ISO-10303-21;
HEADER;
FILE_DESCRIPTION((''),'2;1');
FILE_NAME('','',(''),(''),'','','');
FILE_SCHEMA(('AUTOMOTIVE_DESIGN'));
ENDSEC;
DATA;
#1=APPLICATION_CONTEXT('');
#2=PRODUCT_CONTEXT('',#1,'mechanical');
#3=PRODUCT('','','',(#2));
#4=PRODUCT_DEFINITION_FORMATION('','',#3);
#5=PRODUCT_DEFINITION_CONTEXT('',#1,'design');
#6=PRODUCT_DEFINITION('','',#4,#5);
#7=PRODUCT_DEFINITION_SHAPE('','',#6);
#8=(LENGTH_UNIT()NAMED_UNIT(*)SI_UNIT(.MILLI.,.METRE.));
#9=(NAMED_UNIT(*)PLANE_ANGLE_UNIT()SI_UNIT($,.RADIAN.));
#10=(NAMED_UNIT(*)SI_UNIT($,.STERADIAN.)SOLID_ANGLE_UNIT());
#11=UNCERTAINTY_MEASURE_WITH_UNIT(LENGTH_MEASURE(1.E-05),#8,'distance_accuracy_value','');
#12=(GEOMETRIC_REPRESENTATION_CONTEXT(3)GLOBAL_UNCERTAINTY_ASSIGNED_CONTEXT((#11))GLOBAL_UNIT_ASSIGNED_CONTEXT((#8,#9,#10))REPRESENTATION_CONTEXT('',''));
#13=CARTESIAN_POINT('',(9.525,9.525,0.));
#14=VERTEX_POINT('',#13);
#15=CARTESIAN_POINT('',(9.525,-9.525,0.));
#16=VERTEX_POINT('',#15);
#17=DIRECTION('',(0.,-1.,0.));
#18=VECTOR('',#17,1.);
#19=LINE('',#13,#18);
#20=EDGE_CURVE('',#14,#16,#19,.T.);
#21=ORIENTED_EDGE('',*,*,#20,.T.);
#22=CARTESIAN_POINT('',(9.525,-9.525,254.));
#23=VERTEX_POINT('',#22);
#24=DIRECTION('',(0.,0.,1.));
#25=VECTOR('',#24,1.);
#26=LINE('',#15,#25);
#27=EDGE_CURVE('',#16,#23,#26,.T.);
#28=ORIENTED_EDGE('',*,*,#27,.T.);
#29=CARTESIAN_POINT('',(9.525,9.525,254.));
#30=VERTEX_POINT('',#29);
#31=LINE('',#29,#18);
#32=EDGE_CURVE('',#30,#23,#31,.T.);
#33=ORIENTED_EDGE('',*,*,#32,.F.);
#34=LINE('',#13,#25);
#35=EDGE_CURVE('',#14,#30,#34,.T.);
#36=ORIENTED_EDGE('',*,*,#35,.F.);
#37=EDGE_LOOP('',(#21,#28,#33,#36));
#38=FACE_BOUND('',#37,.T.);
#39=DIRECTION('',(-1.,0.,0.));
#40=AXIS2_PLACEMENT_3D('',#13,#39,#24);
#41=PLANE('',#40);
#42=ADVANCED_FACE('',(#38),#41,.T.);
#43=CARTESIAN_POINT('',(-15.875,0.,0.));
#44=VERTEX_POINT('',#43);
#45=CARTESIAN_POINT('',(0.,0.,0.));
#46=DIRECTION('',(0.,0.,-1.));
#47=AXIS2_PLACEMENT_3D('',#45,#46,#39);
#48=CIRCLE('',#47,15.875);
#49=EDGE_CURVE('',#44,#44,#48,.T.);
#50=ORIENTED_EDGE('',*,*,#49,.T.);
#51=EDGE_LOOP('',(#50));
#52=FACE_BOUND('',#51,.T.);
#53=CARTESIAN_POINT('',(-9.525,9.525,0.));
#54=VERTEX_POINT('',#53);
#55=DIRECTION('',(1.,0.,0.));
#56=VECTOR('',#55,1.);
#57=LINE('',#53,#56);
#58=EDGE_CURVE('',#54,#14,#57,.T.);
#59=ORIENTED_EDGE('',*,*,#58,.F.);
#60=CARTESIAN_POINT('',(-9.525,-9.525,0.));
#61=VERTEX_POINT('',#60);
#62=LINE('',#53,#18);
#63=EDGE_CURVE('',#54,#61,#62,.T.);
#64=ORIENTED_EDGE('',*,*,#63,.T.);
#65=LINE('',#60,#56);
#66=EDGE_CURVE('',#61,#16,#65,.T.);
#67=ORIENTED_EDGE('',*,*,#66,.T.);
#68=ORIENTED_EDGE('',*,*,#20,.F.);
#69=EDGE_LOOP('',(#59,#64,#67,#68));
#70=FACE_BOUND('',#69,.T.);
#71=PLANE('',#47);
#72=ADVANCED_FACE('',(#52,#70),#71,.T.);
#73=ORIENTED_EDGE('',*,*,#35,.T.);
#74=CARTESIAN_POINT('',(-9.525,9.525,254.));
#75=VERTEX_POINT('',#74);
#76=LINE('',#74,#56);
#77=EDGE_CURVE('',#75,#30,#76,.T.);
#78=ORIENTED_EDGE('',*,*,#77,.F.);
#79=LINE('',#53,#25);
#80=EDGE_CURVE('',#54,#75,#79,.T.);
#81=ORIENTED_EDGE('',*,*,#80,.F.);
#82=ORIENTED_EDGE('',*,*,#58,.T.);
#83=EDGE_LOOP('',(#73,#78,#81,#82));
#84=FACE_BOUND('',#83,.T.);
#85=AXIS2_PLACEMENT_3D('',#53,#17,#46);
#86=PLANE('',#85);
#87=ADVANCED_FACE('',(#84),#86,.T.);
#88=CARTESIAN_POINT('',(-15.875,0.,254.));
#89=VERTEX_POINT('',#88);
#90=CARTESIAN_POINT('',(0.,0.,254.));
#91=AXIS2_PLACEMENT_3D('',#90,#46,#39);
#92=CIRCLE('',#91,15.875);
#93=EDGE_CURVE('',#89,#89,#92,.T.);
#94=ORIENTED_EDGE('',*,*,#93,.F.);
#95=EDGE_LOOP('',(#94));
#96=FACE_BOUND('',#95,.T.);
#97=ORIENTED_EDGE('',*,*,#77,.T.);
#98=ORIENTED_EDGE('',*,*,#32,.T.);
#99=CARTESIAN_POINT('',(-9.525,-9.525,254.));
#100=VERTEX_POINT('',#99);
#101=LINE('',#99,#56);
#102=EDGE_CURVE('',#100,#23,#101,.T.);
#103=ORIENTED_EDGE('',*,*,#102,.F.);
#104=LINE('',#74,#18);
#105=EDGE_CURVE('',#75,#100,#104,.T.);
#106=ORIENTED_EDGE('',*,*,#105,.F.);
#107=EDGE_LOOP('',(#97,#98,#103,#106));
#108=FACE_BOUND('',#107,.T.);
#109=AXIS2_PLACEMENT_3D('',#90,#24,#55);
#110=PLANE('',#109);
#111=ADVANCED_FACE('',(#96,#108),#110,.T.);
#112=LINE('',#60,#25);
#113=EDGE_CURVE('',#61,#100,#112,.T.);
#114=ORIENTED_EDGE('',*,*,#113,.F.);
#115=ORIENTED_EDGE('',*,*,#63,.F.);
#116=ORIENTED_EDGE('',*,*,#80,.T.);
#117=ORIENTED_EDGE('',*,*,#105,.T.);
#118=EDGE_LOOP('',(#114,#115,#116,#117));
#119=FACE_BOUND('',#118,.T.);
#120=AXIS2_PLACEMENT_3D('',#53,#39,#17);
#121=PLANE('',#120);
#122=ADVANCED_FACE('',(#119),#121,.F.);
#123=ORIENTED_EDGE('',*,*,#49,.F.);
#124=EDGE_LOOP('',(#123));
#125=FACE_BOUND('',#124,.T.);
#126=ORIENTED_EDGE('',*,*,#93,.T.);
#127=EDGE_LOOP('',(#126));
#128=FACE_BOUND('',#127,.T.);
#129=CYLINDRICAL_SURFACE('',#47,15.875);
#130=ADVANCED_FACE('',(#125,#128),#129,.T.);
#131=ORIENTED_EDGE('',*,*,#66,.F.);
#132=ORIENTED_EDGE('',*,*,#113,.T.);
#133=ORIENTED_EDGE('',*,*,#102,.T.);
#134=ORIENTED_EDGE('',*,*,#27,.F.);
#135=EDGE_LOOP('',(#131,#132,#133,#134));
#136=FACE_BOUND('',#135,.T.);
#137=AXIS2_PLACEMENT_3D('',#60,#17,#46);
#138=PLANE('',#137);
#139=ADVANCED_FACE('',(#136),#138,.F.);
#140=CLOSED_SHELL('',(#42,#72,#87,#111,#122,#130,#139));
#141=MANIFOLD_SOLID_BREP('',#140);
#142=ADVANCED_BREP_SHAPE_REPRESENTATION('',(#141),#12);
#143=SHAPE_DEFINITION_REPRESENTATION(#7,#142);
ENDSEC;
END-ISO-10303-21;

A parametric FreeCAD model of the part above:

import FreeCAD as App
import Part
import Sketcher

V = App.Vector
Q = App.Units.Quantity


def add_polygon(sketch, points):
    """Adds a closed chain of lines whose ends are joined by coincident constraints."""
    first, n = sketch.GeometryCount, len(points)
    for a, b in zip(points, points[1:] + points[:1]):
        sketch.addGeometry(Part.LineSegment(App.Vector(*a, 0), App.Vector(*b, 0)), False)
    for i in range(n):
        sketch.addConstraint(Sketcher.Constraint("Coincident", first + i, 2, first + (i + 1) % n, 1))

doc = App.newDocument("Part")
body = doc.addObject("PartDesign::Body", "Body")

sketch1 = doc.addObject("Sketcher::SketchObject", "Sketch")
body.addObject(sketch1)
sketch1.AttachmentSupport = (doc.XZ_Plane, [""])
sketch1.MapMode = "FlatFace"
add_polygon(sketch1, [(-16, 0), (-16, 254), (0, 254), (0, 0)])
sketch1.addConstraint([
    Sketcher.Constraint("Vertical", 0),
    Sketcher.Constraint("Horizontal", 1),
    Sketcher.Constraint("Vertical", 2),
    Sketcher.Constraint("Horizontal", 3),
    Sketcher.Constraint("Coincident", 2, 2, -1, 1),
    Sketcher.Constraint("DistanceY", 0, 1, 0, 2, Q("10 in")),
    Sketcher.Constraint("DistanceX", 1, 1, 1, 2, Q("0.625 in")),
])
revolution = doc.addObject("PartDesign::Revolution", "Revolution")
body.addObject(revolution)
revolution.Profile = sketch1
revolution.ReferenceAxis = (sketch1, ["V_Axis"])
revolution.Angle = 360

sketch2 = doc.addObject("Sketcher::SketchObject", "Sketch001")
body.addObject(sketch2)
sketch2.AttachmentSupport = (doc.XY_Plane, [""])
sketch2.MapMode = "FlatFace"
sketch2.AttachmentOffset = App.Placement(V(0, 0, 10 * 25.4), App.Rotation())
add_polygon(sketch2, [(-10, 10), (-10, -10), (10, -10), (10, 10)])
sketch2.addConstraint([
    Sketcher.Constraint("Vertical", 0),
    Sketcher.Constraint("Horizontal", 1),
    Sketcher.Constraint("Vertical", 2),
    Sketcher.Constraint("Horizontal", 3),
    Sketcher.Constraint("Symmetric", 0, 2, 2, 2, -1, 1),
    Sketcher.Constraint("Equal", 3, 0),
    Sketcher.Constraint("DistanceX", 1, 1, 1, 2, Q("0.75 in")),
])
pocket1 = doc.addObject("PartDesign::Pocket", "Pocket")
body.addObject(pocket1)
pocket1.Profile = sketch2
pocket1.Type = "ThroughAll"

doc.recompute()
